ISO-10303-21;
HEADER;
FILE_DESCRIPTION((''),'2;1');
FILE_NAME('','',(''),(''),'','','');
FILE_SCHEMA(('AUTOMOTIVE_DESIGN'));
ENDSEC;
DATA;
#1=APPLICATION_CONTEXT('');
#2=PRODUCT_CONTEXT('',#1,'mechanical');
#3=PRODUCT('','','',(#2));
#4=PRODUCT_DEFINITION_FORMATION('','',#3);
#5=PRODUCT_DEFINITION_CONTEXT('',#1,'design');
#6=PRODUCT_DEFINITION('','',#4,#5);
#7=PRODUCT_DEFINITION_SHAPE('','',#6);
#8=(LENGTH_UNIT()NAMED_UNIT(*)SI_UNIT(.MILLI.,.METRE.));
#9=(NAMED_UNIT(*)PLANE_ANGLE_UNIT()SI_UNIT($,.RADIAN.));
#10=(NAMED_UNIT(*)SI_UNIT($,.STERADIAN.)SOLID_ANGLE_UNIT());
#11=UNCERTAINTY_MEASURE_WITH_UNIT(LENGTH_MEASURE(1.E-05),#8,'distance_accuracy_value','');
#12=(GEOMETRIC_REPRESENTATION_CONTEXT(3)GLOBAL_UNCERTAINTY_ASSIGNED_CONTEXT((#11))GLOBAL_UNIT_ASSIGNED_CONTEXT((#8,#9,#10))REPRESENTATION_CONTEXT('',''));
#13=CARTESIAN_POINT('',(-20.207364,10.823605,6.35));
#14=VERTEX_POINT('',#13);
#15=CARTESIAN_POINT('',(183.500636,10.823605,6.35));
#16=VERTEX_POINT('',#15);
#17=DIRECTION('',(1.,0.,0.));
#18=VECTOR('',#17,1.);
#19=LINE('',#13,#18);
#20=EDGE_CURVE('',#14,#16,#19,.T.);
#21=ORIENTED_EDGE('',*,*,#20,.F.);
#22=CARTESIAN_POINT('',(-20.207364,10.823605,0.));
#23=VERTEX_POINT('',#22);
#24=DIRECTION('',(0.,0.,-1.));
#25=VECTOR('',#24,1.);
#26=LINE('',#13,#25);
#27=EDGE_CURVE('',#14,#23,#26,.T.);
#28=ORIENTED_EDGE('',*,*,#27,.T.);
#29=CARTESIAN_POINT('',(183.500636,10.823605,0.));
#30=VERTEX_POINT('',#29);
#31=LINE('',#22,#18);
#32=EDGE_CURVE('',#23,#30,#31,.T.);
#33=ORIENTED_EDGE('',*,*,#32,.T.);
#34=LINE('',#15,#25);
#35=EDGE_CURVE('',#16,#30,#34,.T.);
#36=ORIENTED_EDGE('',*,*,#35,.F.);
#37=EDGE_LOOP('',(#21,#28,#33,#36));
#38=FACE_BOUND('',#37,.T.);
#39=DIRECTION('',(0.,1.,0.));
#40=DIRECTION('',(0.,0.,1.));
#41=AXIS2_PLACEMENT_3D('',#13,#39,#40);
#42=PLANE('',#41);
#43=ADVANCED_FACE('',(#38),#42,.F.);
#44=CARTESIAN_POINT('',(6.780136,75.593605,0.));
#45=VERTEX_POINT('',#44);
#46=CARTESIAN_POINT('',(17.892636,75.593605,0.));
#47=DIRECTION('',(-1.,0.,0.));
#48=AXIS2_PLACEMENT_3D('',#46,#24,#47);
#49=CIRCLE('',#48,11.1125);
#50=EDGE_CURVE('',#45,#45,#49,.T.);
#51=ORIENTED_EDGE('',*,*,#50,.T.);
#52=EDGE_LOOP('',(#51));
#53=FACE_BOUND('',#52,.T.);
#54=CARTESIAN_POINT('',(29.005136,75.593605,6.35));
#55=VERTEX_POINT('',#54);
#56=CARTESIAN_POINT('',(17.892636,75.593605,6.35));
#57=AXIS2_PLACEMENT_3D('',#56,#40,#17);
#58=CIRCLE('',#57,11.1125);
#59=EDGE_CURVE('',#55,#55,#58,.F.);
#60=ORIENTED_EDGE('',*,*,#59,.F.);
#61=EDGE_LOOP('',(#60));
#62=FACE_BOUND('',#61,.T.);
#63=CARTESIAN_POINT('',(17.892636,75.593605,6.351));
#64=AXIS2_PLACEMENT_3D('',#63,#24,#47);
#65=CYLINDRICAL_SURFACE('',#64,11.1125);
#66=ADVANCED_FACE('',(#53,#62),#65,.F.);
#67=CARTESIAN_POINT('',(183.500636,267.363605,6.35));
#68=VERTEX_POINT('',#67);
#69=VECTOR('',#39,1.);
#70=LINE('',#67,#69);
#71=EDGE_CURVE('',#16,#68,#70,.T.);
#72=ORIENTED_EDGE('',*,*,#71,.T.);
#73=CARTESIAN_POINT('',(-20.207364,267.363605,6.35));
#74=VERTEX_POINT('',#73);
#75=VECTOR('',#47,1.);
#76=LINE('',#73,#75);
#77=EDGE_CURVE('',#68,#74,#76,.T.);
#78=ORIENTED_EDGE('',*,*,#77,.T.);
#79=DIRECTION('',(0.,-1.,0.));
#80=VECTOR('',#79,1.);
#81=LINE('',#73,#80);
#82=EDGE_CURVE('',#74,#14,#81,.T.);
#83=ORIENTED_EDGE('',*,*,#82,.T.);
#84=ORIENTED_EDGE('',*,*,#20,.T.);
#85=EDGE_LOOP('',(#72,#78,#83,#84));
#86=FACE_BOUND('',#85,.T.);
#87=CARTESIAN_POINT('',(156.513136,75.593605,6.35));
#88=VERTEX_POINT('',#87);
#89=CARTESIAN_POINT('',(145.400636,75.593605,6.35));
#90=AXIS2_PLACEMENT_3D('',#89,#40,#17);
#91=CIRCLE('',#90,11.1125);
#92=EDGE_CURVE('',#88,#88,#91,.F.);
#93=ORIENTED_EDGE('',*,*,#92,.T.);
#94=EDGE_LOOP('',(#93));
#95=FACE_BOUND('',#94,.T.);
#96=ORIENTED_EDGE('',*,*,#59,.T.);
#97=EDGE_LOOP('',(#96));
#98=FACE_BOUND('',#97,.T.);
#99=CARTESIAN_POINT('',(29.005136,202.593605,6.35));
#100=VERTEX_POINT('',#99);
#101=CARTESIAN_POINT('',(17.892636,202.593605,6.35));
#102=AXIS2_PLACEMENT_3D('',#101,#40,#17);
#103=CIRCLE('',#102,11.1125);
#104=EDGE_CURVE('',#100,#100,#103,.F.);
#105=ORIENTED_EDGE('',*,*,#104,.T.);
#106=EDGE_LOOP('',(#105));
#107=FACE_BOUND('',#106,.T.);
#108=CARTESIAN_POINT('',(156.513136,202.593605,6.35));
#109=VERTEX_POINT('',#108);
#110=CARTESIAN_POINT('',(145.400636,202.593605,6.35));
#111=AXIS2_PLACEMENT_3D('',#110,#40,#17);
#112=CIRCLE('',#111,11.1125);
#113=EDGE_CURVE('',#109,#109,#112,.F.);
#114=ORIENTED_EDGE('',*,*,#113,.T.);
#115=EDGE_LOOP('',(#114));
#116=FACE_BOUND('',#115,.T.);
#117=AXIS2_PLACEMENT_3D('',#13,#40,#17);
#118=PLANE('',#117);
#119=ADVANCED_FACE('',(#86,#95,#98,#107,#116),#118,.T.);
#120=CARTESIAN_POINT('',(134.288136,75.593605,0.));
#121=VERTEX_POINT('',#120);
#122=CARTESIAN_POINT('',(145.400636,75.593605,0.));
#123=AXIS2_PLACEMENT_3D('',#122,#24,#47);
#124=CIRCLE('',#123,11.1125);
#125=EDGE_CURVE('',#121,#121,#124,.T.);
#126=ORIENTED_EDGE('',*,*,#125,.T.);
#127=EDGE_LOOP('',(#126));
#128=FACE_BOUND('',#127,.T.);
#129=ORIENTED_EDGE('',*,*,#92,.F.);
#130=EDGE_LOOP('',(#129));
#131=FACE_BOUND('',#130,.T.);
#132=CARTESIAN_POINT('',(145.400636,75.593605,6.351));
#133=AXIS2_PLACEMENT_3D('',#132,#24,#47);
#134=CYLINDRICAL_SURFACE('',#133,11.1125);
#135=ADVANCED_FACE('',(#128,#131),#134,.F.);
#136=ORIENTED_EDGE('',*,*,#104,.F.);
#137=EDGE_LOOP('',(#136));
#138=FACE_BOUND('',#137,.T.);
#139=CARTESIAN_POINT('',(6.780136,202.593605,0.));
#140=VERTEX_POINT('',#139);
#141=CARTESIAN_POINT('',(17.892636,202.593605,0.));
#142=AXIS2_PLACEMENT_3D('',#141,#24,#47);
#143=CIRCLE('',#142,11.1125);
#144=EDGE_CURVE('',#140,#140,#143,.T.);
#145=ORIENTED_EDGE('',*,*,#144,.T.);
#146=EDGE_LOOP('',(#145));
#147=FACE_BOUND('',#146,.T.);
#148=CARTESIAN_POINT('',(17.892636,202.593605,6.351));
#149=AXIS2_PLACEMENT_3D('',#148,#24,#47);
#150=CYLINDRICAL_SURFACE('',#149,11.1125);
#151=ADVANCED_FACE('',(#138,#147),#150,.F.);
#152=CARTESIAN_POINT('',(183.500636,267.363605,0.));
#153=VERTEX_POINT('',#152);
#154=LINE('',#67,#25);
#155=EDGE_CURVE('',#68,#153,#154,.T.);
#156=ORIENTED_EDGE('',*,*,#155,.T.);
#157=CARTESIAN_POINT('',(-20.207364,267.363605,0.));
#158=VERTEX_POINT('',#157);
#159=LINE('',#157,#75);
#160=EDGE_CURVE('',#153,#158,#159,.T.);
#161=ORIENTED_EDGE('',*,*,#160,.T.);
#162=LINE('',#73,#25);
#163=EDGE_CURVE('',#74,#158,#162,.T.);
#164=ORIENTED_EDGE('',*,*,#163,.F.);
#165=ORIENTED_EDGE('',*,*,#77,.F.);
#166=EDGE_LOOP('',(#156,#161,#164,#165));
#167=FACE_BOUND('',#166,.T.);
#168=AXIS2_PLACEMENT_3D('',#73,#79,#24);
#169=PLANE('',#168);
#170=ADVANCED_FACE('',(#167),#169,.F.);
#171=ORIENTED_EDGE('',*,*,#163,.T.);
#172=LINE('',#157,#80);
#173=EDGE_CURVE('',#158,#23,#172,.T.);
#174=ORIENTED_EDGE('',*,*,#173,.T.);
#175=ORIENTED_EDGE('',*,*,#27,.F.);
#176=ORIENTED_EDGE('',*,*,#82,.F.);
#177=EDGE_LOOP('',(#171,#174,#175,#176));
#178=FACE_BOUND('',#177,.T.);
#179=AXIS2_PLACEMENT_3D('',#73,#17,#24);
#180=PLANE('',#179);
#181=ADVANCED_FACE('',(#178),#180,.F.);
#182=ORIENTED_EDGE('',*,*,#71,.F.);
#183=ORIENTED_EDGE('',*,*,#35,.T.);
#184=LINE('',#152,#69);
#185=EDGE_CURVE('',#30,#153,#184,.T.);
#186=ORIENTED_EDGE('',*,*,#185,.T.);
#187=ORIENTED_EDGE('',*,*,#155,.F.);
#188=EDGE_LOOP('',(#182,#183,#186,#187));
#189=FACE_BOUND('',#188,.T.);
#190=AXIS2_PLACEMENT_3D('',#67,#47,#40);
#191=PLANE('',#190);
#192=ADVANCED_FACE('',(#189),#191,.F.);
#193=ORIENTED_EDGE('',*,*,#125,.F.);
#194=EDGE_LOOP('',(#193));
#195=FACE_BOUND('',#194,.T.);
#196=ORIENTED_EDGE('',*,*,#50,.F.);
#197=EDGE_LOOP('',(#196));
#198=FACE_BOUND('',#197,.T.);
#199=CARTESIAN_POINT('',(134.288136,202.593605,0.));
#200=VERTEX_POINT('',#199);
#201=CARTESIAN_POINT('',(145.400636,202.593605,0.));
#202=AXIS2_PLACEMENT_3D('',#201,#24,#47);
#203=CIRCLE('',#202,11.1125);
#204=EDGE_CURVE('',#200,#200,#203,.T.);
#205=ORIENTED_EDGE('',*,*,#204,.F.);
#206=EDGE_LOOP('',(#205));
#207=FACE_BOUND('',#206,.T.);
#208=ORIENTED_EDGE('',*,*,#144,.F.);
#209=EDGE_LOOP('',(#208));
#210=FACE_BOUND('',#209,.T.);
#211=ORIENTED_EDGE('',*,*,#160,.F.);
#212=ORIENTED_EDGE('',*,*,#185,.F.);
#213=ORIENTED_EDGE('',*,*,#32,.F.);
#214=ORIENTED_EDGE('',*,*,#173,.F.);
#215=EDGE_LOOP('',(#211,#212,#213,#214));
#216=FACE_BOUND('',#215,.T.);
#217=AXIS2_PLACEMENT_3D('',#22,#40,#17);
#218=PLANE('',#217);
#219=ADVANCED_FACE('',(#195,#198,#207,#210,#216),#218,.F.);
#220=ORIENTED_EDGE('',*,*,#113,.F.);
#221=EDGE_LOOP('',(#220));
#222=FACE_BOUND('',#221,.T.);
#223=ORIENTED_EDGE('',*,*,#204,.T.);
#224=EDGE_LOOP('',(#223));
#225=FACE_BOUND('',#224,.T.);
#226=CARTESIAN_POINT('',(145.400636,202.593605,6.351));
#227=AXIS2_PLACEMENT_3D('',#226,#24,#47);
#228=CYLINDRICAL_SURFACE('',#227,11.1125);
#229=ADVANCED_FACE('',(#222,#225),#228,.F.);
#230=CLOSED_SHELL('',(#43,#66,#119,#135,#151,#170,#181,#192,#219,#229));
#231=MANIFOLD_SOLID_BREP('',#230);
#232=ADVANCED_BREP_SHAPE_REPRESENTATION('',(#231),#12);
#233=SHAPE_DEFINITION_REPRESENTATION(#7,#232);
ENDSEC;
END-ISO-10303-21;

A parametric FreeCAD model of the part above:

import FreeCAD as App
import Part
import Sketcher
from FreeCAD import Vector
Q = App.Units.Quantity


def add_polygon(sketch, points):
    """Adds a closed chain of lines whose ends are joined by coincident constraints."""
    first, n = sketch.GeometryCount, len(points)
    for a, b in zip(points, points[1:] + points[:1]):
        sketch.addGeometry(Part.LineSegment(App.Vector(*a, 0), App.Vector(*b, 0)), False)
    for i in range(n):
        sketch.addConstraint(Sketcher.Constraint("Coincident", first + i, 2, first + (i + 1) % n, 1))

doc = App.newDocument("Part")
params = doc.addObject("Spreadsheet::Sheet", "Params")
for row, (alias, value) in enumerate([
    ("sketch1_height", "10.1 in"),
    ("sketch1_width", "8.02 in"),
    ("pad1_length", "0.25 in"),
    ("sketch2_diameter", "0.875 in"),
    ("sketch3_diameter", "0.875 in"),
    ("sketch4_diameter", "0.875 in"),
    ("sketch5_diameter", "0.875 in"),
], start=1):
    params.set(f"A{row}", alias)
    params.set(f"B{row}", "=" + value)
    params.setAlias(f"B{row}", alias)

body = doc.addObject("PartDesign::Body", "Body")

sketch1 = body.newObject("Sketcher::SketchObject", "Sketch")
sketch1.AttachmentSupport = (doc.getObject("XY_Plane"), [""])
sketch1.MapMode = "FlatFace"
add_polygon(sketch1, [(-20.207364, 267.363605), (-20.207364, 10.823605), (183.500636, 10.823605), (183.500636, 267.363605)])
sketch1.addConstraint(Sketcher.Constraint("Vertical", 0))
sketch1.addConstraint(Sketcher.Constraint("Horizontal", 1))
sketch1.addConstraint(Sketcher.Constraint("Vertical", 2))
sketch1.addConstraint(Sketcher.Constraint("Horizontal", 3))
sketch1.addConstraint(Sketcher.Constraint("DistanceY", 0, 2, 0, 1, Q("10.1 in")))
sketch1.addConstraint(Sketcher.Constraint("DistanceX", 1, 1, 1, 2, Q("8.02 in")))
sketch1.addConstraint(Sketcher.Constraint("DistanceX", 0, 2, -1, 1, 20.207364))
sketch1.addConstraint(Sketcher.Constraint("DistanceY", -1, 1, 0, 2, 10.823605))
sketch1.setExpression("Constraints[8]", "Params.sketch1_height")
sketch1.setExpression("Constraints[9]", "Params.sketch1_width")
pad1 = body.newObject("PartDesign::Pad", "Pad")
pad1.Profile = sketch1
pad1.setExpression("Length", "Params.pad1_length")

sketch2 = body.newObject("Sketcher::SketchObject", "Sketch001")
sketch2.AttachmentSupport = (doc.getObject("XY_Plane"), [""])
sketch2.MapMode = "FlatFace"
sketch2.addGeometry(Part.Circle(Vector(145.400636, 202.593605, 0), Vector(0, 0, 1), 11.1125), False)
sketch2.addConstraint(Sketcher.Constraint("Diameter", 0, Q("0.875 in")))
sketch2.addConstraint(Sketcher.Constraint("DistanceX", -1, 1, 0, 3, 145.400636))
sketch2.addConstraint(Sketcher.Constraint("DistanceY", -1, 1, 0, 3, 202.593605))
sketch2.setExpression("Constraints[0]", "Params.sketch2_diameter")
pocket1 = body.newObject("PartDesign::Pocket", "Pocket")
pocket1.Profile = sketch2
pocket1.Type = "UpToFirst"
pocket1.Reversed = True

sketch3 = body.newObject("Sketcher::SketchObject", "Sketch002")
sketch3.AttachmentSupport = (doc.getObject("XY_Plane"), [""])
sketch3.MapMode = "FlatFace"
sketch3.addGeometry(Part.Circle(Vector(145.400636, 75.593605, 0), Vector(0, 0, 1), 11.1125), False)
sketch3.addConstraint(Sketcher.Constraint("Diameter", 0, Q("0.875 in")))
sketch3.addConstraint(Sketcher.Constraint("DistanceX", -1, 1, 0, 3, 145.400636))
sketch3.addConstraint(Sketcher.Constraint("DistanceY", -1, 1, 0, 3, 75.593605))
sketch3.setExpression("Constraints[0]", "Params.sketch3_diameter")
pocket2 = body.newObject("PartDesign::Pocket", "Pocket001")
pocket2.Profile = sketch3
pocket2.Type = "UpToFirst"
pocket2.Reversed = True

sketch4 = body.newObject("Sketcher::SketchObject", "Sketch003")
sketch4.AttachmentSupport = (doc.getObject("XY_Plane"), [""])
sketch4.MapMode = "FlatFace"
sketch4.addGeometry(Part.Circle(Vector(17.892636, 202.593605, 0), Vector(0, 0, 1), 11.1125), False)
sketch4.addConstraint(Sketcher.Constraint("Diameter", 0, Q("0.875 in")))
sketch4.addConstraint(Sketcher.Constraint("DistanceX", -1, 1, 0, 3, 17.892636))
sketch4.addConstraint(Sketcher.Constraint("DistanceY", -1, 1, 0, 3, 202.593605))
sketch4.setExpression("Constraints[0]", "Params.sketch4_diameter")
pocket3 = body.newObject("PartDesign::Pocket", "Pocket002")
pocket3.Profile = sketch4
pocket3.Type = "UpToFirst"
pocket3.Reversed = True

sketch5 = body.newObject("Sketcher::SketchObject", "Sketch004")
sketch5.AttachmentSupport = (doc.getObject("XY_Plane"), [""])
sketch5.MapMode = "FlatFace"
sketch5.addGeometry(Part.Circle(Vector(17.892636, 75.593605, 0), Vector(0, 0, 1), 11.1125), False)
sketch5.addConstraint(Sketcher.Constraint("Diameter", 0, Q("0.875 in")))
sketch5.addConstraint(Sketcher.Constraint("DistanceX", -1, 1, 0, 3, 17.892636))
sketch5.addConstraint(Sketcher.Constraint("DistanceY", -1, 1, 0, 3, 75.593605))
sketch5.setExpression("Constraints[0]", "Params.sketch5_diameter")
pocket4 = body.newObject("PartDesign::Pocket", "Pocket003")
pocket4.Profile = sketch5
pocket4.Type = "UpToFirst"
pocket4.Reversed = True

doc.recompute()
